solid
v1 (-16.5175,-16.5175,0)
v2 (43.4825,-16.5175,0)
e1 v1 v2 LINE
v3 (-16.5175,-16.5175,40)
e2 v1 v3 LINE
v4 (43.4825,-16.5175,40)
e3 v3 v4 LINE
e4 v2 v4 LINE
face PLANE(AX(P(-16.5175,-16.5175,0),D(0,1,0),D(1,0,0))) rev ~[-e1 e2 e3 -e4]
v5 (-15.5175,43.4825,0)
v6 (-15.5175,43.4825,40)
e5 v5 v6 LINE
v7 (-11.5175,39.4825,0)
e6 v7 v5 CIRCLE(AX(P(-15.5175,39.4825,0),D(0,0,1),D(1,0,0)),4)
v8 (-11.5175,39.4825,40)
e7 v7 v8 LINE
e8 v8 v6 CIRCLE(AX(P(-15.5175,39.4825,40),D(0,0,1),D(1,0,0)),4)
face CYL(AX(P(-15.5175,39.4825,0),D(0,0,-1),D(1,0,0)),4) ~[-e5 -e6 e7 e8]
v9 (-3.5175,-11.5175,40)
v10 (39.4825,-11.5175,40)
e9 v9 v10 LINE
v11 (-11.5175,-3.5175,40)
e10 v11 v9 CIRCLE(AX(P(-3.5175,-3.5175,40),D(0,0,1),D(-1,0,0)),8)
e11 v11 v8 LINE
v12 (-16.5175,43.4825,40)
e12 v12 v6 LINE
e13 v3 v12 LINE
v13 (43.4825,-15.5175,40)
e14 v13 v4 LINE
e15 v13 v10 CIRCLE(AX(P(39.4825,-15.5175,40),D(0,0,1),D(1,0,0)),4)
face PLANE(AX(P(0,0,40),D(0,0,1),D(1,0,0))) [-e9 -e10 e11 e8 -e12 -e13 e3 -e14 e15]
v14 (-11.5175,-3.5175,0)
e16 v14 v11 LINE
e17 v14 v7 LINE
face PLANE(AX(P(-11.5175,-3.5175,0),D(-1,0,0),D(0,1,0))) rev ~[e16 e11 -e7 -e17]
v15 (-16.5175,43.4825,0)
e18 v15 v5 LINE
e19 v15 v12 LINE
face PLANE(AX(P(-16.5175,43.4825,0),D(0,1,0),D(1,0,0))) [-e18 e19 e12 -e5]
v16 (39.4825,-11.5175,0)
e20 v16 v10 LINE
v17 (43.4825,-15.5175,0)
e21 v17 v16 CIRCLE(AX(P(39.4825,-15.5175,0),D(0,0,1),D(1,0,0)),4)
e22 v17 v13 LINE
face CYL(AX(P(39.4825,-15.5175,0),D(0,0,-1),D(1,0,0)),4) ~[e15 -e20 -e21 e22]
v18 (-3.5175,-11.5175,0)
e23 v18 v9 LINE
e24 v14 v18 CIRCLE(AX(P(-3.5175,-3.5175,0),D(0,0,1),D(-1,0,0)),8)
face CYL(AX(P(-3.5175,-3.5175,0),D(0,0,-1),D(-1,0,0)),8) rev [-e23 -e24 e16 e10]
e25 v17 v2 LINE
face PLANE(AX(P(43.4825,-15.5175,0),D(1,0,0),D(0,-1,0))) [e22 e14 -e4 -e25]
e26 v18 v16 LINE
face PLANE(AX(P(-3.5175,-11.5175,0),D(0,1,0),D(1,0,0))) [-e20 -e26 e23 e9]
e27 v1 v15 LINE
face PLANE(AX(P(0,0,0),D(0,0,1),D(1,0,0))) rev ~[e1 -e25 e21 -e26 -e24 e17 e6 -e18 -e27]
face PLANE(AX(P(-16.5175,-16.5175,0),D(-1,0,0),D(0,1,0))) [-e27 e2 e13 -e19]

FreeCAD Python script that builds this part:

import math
import FreeCAD as App
import Part
import Sketcher
Q = App.Units.Quantity

doc = App.newDocument("Part")
body = doc.addObject("PartDesign::Body", "Body")

# Sketch on XY plane
sketch1 = body.newObject("Sketcher::SketchObject", "Sketch")
sketch1.AttachmentSupport = (doc.getObject("XY_Plane"), [""])
sketch1.MapMode = "FlatFace"
sketch1.addGeometry([
    Part.ArcOfCircle(Part.Circle(App.Vector(-3.5, -3.5, 0), App.Vector(0, 0, 1), 8), math.radians(180), math.radians(270)),  # 0
    Part.LineSegment(App.Vector(-11.5, -3.5, 0), App.Vector(-11.5, 39.5, 0)),  # 1
    Part.ArcOfCircle(Part.Circle(App.Vector(-15.5, 39.5, 0), App.Vector(0, 0, 1), 4), math.radians(0), math.radians(90)),  # 2
    Part.LineSegment(App.Vector(-15.5, 43.5, 0), App.Vector(-16.5, 43.5, 0)),  # 3
    Part.LineSegment(App.Vector(-16.5, 43.5, 0), App.Vector(-16.5, -16.5, 0)),  # 4
    Part.LineSegment(App.Vector(-16.5, -16.5, 0), App.Vector(43.5, -16.5, 0)),  # 5
    Part.LineSegment(App.Vector(43.5, -16.5, 0), App.Vector(43.5, -15.5, 0)),  # 6
    Part.ArcOfCircle(Part.Circle(App.Vector(39.5, -15.5, 0), App.Vector(0, 0, 1), 4), math.radians(0), math.radians(90)),  # 7
    Part.LineSegment(App.Vector(39.5, -11.5, 0), App.Vector(-3.5, -11.5, 0)),  # 8
], False)
sketch1.addConstraint([
    Sketcher.Constraint("Tangent", 0, 1, 1, 1),
    Sketcher.Constraint("Tangent", 1, 2, 2, 1),
    Sketcher.Constraint("Tangent", 2, 2, 3, 1),
    Sketcher.Constraint("Coincident", 3, 2, 4, 1),
    Sketcher.Constraint("Coincident", 4, 2, 5, 1),
    Sketcher.Constraint("Coincident", 5, 2, 6, 1),
    Sketcher.Constraint("Tangent", 6, 2, 7, 1),
    Sketcher.Constraint("Tangent", 7, 2, 8, 1),
    Sketcher.Constraint("Tangent", 8, 2, 0, 2),
    Sketcher.Constraint("Vertical", 1),
    Sketcher.Constraint("Horizontal", 3),
    Sketcher.Constraint("Vertical", 4),
    Sketcher.Constraint("Horizontal", 5),
    Sketcher.Constraint("Vertical", 6),
    Sketcher.Constraint("Horizontal", 8),
    Sketcher.Constraint("Equal", 2, 7),
    Sketcher.Constraint("Equal", 8, 1),
    Sketcher.Constraint("Equal", 5, 4),
    Sketcher.Constraint("Radius", 0, Q("8 mm")),
    Sketcher.Constraint("Radius", 2, Q("4 mm")),
    Sketcher.Constraint("DistanceX", 5, 1, 5, 2, Q("60 mm")),
    Sketcher.Constraint("DistanceX", 3, 2, 1, 2, Q("5 mm")),
    Sketcher.Constraint("DistanceX", 3, 2, -1, 1, Q("16.5175 mm")),
    Sketcher.Constraint("DistanceY", 4, 2, -1, 1, Q("16.5175 mm")),
])
pad1 = body.newObject("PartDesign::Pad", "Pad")
pad1.Profile = sketch1
pad1.Length = 40

doc.recompute()
